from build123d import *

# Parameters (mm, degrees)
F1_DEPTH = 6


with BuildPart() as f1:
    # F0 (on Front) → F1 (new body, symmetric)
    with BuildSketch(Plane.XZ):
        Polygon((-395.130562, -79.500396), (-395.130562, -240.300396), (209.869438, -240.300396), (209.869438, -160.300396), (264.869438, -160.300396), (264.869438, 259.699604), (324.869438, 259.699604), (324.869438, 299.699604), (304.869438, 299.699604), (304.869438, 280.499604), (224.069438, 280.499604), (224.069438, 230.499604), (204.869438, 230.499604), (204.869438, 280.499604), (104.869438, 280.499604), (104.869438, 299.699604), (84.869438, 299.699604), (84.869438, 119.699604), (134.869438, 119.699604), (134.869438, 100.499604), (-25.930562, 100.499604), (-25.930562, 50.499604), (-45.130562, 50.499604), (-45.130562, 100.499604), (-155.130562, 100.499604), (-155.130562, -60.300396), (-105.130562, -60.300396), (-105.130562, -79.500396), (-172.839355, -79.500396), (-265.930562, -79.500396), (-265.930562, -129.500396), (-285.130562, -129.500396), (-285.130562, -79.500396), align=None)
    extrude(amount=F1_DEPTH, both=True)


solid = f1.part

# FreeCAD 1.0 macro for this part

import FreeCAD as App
import Part
import Sketcher

V = App.Vector

doc = App.newDocument("Part")
body = doc.addObject("PartDesign::Body", "Body")

# Sketch on XZ plane
sketch1 = body.newObject("Sketcher::SketchObject", "Sketch")
sketch1.AttachmentSupport = (doc.getObject("XZ_Plane"), [""])
sketch1.MapMode = "FlatFace"
sketch1.addGeometry([
    Part.LineSegment(V(-395, -80, 0), V(-395, -240, 0)),  # 0
    Part.LineSegment(V(-395, -240, 0), V(210, -240, 0)),  # 1
    Part.LineSegment(V(210, -240, 0), V(210, -160, 0)),  # 2
    Part.LineSegment(V(210, -160, 0), V(265, -160, 0)),  # 3
    Part.LineSegment(V(265, -160, 0), V(265, 260, 0)),  # 4
    Part.LineSegment(V(265, 260, 0), V(325, 260, 0)),  # 5
    Part.LineSegment(V(325, 260, 0), V(325, 300, 0)),  # 6
    Part.LineSegment(V(325, 300, 0), V(305, 300, 0)),  # 7
    Part.LineSegment(V(305, 300, 0), V(305, 280, 0)),  # 8
    Part.LineSegment(V(305, 280, 0), V(224, 280, 0)),  # 9
    Part.LineSegment(V(224, 280, 0), V(224, 230, 0)),  # 10
    Part.LineSegment(V(224, 230, 0), V(205, 230, 0)),  # 11
    Part.LineSegment(V(205, 230, 0), V(205, 280, 0)),  # 12
    Part.LineSegment(V(205, 280, 0), V(105, 280, 0)),  # 13
    Part.LineSegment(V(105, 280, 0), V(105, 300, 0)),  # 14
    Part.LineSegment(V(105, 300, 0), V(85, 300, 0)),  # 15
    Part.LineSegment(V(85, 300, 0), V(85, 120, 0)),  # 16
    Part.LineSegment(V(85, 120, 0), V(135, 120, 0)),  # 17
    Part.LineSegment(V(135, 120, 0), V(135, 100, 0)),  # 18
    Part.LineSegment(V(135, 100, 0), V(-26, 100, 0)),  # 19
    Part.LineSegment(V(-26, 100, 0), V(-26, 50, 0)),  # 20
    Part.LineSegment(V(-26, 50, 0), V(-45, 50, 0)),  # 21
    Part.LineSegment(V(-45, 50, 0), V(-45, 100, 0)),  # 22
    Part.LineSegment(V(-45, 100, 0), V(-155, 100, 0)),  # 23
    Part.LineSegment(V(-155, 100, 0), V(-155, -60, 0)),  # 24
    Part.LineSegment(V(-155, -60, 0), V(-105, -60, 0)),  # 25
    Part.LineSegment(V(-105, -60, 0), V(-105, -80, 0)),  # 26
    Part.LineSegment(V(-105, -80, 0), V(-266, -80, 0)),  # 27
    Part.LineSegment(V(-266, -80, 0), V(-266, -130, 0)),  # 28
    Part.LineSegment(V(-266, -130, 0), V(-285, -130, 0)),  # 29
    Part.LineSegment(V(-285, -130, 0), V(-285, -80, 0)),  # 30
    Part.LineSegment(V(-285, -80, 0), V(-395, -80, 0)),  # 31
], False)
sketch1.addConstraint([
    Sketcher.Constraint("Coincident", 0, 2, 1, 1),
    Sketcher.Constraint("Coincident", 1, 2, 2, 1),
    Sketcher.Constraint("Coincident", 2, 2, 3, 1),
    Sketcher.Constraint("Coincident", 3, 2, 4, 1),
    Sketcher.Constraint("Coincident", 4, 2, 5, 1),
    Sketcher.Constraint("Coincident", 5, 2, 6, 1),
    Sketcher.Constraint("Coincident", 6, 2, 7, 1),
    Sketcher.Constraint("Coincident", 7, 2, 8, 1),
    Sketcher.Constraint("Coincident", 8, 2, 9, 1),
    Sketcher.Constraint("Coincident", 9, 2, 10, 1),
    Sketcher.Constraint("Coincident", 10, 2, 11, 1),
    Sketcher.Constraint("Coincident", 11, 2, 12, 1),
    Sketcher.Constraint("Coincident", 12, 2, 13, 1),
    Sketcher.Constraint("Coincident", 13, 2, 14, 1),
    Sketcher.Constraint("Coincident", 14, 2, 15, 1),
    Sketcher.Constraint("Coincident", 15, 2, 16, 1),
    Sketcher.Constraint("Coincident", 16, 2, 17, 1),
    Sketcher.Constraint("Coincident", 17, 2, 18, 1),
    Sketcher.Constraint("Coincident", 18, 2, 19, 1),
    Sketcher.Constraint("Coincident", 19, 2, 20, 1),
    Sketcher.Constraint("Coincident", 20, 2, 21, 1),
    Sketcher.Constraint("Coincident", 21, 2, 22, 1),
    Sketcher.Constraint("Coincident", 22, 2, 23, 1),
    Sketcher.Constraint("Coincident", 23, 2, 24, 1),
    Sketcher.Constraint("Coincident", 24, 2, 25, 1),
    Sketcher.Constraint("Coincident", 25, 2, 26, 1),
    Sketcher.Constraint("Coincident", 26, 2, 27, 1),
    Sketcher.Constraint("Coincident", 27, 2, 28, 1),
    Sketcher.Constraint("Coincident", 28, 2, 29, 1),
    Sketcher.Constraint("Coincident", 29, 2, 30, 1),
    Sketcher.Constraint("Coincident", 30, 2, 31, 1),
    Sketcher.Constraint("Coincident", 31, 2, 0, 1),
    Sketcher.Constraint("Vertical", 0),
    Sketcher.Constraint("Horizontal", 1),
    Sketcher.Constraint("Vertical", 2),
    Sketcher.Constraint("Horizontal", 3),
    Sketcher.Constraint("Vertical", 4),
    Sketcher.Constraint("Horizontal", 5),
    Sketcher.Constraint("Vertical", 6),
    Sketcher.Constraint("Horizontal", 7),
    Sketcher.Constraint("Vertical", 8),
    Sketcher.Constraint("Horizontal", 9),
    Sketcher.Constraint("Vertical", 10),
    Sketcher.Constraint("Horizontal", 11),
    Sketcher.Constraint("Vertical", 12),
    Sketcher.Constraint("Horizontal", 13),
    Sketcher.Constraint("Vertical", 14),
    Sketcher.Constraint("Horizontal", 15),
    Sketcher.Constraint("Vertical", 16),
    Sketcher.Constraint("Horizontal", 17),
    Sketcher.Constraint("Vertical", 18),
    Sketcher.Constraint("Horizontal", 19),
    Sketcher.Constraint("Vertical", 20),
    Sketcher.Constraint("Horizontal", 21),
    Sketcher.Constraint("Vertical", 22),
    Sketcher.Constraint("Horizontal", 23),
    Sketcher.Constraint("Vertical", 24),
    Sketcher.Constraint("Horizontal", 25),
    Sketcher.Constraint("Vertical", 26),
    Sketcher.Constraint("Horizontal", 27),
    Sketcher.Constraint("Vertical", 28),
    Sketcher.Constraint("Horizontal", 29),
    Sketcher.Constraint("Vertical", 30),
    Sketcher.Constraint("Horizontal", 31),
    Sketcher.Constraint("Horizontal", 9, 2, 12, 2),
    Sketcher.Constraint("Horizontal", 7, 2, 14, 2),
    Sketcher.Constraint("Horizontal", 19, 2, 22, 2),
    Sketcher.Constraint("Horizontal", 27, 2, 30, 2),
    Sketcher.Constraint("Equal", 7, 15),
    Sketcher.Constraint("Equal", 11, 21),
    Sketcher.Constraint("Equal", 17, 25),
    Sketcher.Constraint("Equal", 19, 27),
    Sketcher.Constraint("Equal", 21, 29),
    Sketcher.Constraint("Equal", 23, 31),
    Sketcher.Constraint("Equal", 27, 0),
    Sketcher.Constraint("Equal", 29, 8),
    Sketcher.Constraint("Equal", 25, 10),
    Sketcher.Constraint("Equal", 14, 18),
    Sketcher.Constraint("Equal", 12, 20),
    Sketcher.Constraint("Equal", 0, 24),
    Sketcher.Constraint("Equal", 18, 26),
    Sketcher.Constraint("Equal", 22, 28),
    Sketcher.Constraint("DistanceX", 1, 1, 1, 2, 605.0),
    Sketcher.Constraint("DistanceX", 3, 1, 3, 2, 55.0),
    Sketcher.Constraint("DistanceX", 5, 1, 5, 2, 60.0),
    Sketcher.Constraint("DistanceX", 7, 2, 7, 1, 20.0),
    Sketcher.Constraint("DistanceX", 13, 2, 13, 1, 100.0),
    Sketcher.Constraint("DistanceX", 17, 1, 17, 2, 50.0),
    Sketcher.Constraint("DistanceX", 23, 2, 23, 1, 110.0),
    Sketcher.Constraint("DistanceY", 2, 1, 2, 2, 80.0),
    Sketcher.Constraint("DistanceY", 4, 1, 4, 2, 420.0),
    Sketcher.Constraint("DistanceY", 6, 1, 6, 2, 40.0),
    Sketcher.Constraint("DistanceY", 16, 2, 16, 1, 180.0),
    Sketcher.Constraint("DistanceX", 9, 2, 9, 1, 80.8),
    Sketcher.Constraint("DistanceX", 0, 2, -1, 1, 395.130562),
    Sketcher.Constraint("DistanceY", 0, 2, -1, 1, 240.300396),
])
pad1 = body.newObject("PartDesign::Pad", "Pad")
pad1.Profile = sketch1
pad1.Length = 12
pad1.Midplane = True

doc.recompute()
